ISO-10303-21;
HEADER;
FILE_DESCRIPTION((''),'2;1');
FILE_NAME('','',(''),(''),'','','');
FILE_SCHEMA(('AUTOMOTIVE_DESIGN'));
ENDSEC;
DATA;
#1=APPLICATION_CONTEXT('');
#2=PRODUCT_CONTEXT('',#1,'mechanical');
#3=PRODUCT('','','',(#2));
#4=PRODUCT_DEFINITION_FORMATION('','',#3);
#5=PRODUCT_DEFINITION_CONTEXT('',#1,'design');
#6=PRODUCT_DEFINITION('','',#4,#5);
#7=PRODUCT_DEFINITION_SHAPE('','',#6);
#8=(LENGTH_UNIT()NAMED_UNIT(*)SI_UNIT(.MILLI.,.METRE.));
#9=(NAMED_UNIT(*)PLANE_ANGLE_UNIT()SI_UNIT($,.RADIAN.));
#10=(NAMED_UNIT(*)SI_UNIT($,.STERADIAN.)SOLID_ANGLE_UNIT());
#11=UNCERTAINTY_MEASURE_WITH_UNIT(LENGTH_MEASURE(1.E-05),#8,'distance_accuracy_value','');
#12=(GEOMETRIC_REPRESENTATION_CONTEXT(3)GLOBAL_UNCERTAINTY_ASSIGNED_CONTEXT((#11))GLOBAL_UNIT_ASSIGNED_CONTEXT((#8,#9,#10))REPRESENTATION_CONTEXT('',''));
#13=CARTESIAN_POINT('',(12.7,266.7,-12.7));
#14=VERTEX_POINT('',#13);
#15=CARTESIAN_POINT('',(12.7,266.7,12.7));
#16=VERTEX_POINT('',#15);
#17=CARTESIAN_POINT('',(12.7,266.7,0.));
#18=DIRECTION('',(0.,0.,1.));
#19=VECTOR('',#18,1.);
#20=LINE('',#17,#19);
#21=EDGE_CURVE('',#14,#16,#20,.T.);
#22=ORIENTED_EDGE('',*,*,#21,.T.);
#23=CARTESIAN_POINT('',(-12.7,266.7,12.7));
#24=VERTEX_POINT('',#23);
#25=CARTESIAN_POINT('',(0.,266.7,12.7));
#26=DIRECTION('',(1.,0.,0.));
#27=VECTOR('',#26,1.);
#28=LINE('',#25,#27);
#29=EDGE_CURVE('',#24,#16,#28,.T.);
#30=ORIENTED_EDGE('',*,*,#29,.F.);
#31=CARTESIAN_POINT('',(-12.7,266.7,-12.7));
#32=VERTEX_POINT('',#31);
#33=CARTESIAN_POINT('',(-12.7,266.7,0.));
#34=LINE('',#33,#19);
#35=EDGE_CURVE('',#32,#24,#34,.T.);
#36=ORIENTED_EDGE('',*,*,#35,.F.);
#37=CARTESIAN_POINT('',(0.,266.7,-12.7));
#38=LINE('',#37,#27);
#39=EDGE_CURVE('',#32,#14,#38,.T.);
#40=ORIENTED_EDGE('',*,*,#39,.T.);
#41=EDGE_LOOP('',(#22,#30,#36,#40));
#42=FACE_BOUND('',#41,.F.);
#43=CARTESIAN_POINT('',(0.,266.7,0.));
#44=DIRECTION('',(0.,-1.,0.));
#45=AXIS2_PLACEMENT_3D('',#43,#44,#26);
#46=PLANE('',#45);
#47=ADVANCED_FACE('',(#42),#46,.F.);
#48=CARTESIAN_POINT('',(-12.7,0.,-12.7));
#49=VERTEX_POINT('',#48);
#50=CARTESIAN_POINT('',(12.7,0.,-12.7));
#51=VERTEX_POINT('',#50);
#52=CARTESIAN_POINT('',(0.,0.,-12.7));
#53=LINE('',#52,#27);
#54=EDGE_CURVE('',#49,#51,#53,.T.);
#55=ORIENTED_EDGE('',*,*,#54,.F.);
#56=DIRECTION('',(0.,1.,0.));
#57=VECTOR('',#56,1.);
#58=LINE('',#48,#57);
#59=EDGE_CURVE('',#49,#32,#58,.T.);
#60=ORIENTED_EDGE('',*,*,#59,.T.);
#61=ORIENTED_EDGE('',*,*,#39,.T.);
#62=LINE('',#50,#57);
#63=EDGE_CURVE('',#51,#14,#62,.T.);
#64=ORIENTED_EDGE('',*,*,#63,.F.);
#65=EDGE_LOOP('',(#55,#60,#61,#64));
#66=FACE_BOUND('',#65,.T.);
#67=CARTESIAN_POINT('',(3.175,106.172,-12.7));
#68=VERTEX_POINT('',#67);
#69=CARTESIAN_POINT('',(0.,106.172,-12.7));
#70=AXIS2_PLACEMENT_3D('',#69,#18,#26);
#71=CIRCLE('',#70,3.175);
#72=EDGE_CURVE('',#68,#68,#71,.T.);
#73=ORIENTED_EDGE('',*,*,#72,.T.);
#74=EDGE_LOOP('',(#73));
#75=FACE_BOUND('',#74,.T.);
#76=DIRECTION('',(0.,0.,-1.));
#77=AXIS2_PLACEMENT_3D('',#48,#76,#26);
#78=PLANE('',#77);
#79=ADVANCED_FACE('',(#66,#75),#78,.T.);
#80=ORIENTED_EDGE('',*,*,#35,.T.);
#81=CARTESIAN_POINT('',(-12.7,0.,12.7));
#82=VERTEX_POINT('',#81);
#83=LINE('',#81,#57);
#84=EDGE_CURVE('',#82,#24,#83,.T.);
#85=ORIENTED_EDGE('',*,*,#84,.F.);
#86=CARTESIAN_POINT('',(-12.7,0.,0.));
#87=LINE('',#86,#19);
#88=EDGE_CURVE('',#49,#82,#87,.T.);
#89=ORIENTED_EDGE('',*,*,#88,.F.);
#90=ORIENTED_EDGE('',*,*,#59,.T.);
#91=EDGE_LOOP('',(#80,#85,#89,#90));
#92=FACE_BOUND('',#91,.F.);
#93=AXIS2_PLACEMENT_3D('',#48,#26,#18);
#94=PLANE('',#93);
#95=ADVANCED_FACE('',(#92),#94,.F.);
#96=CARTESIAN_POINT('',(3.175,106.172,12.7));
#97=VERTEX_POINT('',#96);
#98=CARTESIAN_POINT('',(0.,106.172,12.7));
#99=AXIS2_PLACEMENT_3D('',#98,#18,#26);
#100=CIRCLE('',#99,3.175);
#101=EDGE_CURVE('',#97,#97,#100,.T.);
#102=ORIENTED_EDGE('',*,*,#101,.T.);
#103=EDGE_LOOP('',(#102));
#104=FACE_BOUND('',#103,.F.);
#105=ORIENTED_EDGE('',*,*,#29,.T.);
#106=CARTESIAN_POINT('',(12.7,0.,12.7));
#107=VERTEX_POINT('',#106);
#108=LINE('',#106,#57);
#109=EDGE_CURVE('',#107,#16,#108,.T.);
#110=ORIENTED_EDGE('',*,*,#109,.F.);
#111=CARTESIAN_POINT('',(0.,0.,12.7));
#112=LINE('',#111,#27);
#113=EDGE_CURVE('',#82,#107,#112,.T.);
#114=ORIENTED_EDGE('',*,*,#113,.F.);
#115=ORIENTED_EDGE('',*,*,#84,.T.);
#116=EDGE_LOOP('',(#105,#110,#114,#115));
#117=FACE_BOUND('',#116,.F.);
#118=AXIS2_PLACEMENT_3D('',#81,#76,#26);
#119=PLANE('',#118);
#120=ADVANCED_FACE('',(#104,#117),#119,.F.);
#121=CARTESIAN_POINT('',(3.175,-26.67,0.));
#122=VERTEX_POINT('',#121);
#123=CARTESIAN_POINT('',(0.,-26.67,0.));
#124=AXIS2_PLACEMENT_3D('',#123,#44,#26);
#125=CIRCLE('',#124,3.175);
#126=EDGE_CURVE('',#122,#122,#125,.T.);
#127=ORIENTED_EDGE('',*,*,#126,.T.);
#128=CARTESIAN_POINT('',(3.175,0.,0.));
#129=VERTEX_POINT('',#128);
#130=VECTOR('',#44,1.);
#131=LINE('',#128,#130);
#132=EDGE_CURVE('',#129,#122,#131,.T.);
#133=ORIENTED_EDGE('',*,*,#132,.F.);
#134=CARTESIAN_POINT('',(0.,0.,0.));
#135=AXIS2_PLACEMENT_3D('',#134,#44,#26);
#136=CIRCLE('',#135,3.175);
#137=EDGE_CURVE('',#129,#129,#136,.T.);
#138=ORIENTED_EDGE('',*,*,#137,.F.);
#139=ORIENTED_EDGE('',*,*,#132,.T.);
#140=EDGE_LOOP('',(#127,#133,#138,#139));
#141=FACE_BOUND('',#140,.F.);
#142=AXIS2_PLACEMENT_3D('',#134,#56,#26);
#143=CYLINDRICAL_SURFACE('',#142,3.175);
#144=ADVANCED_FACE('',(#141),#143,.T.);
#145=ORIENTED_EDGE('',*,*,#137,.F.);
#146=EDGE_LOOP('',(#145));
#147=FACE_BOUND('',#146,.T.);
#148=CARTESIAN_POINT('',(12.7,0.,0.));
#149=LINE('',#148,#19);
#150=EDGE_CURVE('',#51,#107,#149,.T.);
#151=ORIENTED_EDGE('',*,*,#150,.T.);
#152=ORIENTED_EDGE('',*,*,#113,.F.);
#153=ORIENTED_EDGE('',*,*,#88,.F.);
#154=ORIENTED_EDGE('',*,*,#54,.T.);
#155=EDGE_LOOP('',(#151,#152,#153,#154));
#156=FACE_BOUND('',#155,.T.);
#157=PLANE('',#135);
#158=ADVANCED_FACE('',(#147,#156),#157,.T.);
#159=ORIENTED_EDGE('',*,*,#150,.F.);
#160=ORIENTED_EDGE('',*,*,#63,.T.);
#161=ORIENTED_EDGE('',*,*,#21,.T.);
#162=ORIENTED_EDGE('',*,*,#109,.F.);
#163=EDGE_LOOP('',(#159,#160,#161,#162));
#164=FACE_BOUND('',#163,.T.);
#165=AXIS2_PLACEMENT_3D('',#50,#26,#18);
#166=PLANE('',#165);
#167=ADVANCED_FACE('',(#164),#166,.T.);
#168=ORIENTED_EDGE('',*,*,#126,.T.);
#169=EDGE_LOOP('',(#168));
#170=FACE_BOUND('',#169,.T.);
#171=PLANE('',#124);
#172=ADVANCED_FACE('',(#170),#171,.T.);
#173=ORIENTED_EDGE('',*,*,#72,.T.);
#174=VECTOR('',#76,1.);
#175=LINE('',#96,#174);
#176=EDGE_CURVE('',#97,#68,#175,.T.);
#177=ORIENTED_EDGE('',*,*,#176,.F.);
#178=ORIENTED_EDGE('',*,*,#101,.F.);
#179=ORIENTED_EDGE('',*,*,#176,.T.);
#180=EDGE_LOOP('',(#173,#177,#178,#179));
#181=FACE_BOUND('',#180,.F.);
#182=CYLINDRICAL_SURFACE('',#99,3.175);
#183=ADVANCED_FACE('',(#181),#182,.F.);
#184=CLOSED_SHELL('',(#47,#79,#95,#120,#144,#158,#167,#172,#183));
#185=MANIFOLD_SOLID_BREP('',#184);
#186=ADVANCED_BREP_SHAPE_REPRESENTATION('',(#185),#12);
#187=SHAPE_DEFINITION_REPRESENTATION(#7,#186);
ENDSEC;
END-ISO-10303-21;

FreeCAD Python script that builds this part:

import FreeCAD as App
import Part
import Sketcher
from FreeCAD import Vector
Q = App.Units.Quantity

doc = App.newDocument("Part")
body = doc.addObject("PartDesign::Body", "Body")

sketch1 = body.newObject("Sketcher::SketchObject", "Sketch")
sketch1.AttachmentSupport = (doc.getObject("XZ_Plane"), [""])
sketch1.MapMode = "FlatFace"
sketch1.addGeometry([
    Part.LineSegment(Vector(-13, 13, 0), Vector(-13, -13, 0)),
    Part.LineSegment(Vector(-13, -13, 0), Vector(13, -13, 0)),
    Part.LineSegment(Vector(13, -13, 0), Vector(13, 13, 0)),
    Part.LineSegment(Vector(13, 13, 0), Vector(-13, 13, 0)),
], False)
sketch1.addConstraint([
    Sketcher.Constraint("Coincident", 0, 2, 1, 1),
    Sketcher.Constraint("Coincident", 1, 2, 2, 1),
    Sketcher.Constraint("Coincident", 2, 2, 3, 1),
    Sketcher.Constraint("Coincident", 3, 2, 0, 1),
    Sketcher.Constraint("Vertical", 0),
    Sketcher.Constraint("Horizontal", 1),
    Sketcher.Constraint("Vertical", 2),
    Sketcher.Constraint("Horizontal", 3),
    Sketcher.Constraint("Symmetric", 0, 2, 2, 2, -1, 1),
    Sketcher.Constraint("Equal", 3, 0),
    Sketcher.Constraint("DistanceX", 1, 1, 1, 2, Q("1 in")),
])
pad1 = body.newObject("PartDesign::Pad", "Pad")
pad1.Profile = sketch1
pad1.Length = Q("10.5 in")
pad1.Reversed = True

sketch2 = body.newObject("Sketcher::SketchObject", "Sketch001")
sketch2.AttachmentSupport = (doc.getObject("XZ_Plane"), [""])
sketch2.MapMode = "FlatFace"
sketch2.addGeometry(Part.Circle(Vector(0, 0, 0), Vector(0, 0, 1), 3.2), False)
sketch2.addConstraint([
    Sketcher.Constraint("Coincident", 0, 3, -1, 1),
    Sketcher.Constraint("Diameter", 0, Q("0.25 in")),
])
pad2 = body.newObject("PartDesign::Pad", "Pad001")
pad2.Profile = sketch2
pad2.Length = Q("1.05 in")

sketch3 = body.newObject("Sketcher::SketchObject", "Sketch002")
sketch3.AttachmentSupport = (doc.getObject("XY_Plane"), [""])
sketch3.MapMode = "FlatFace"
sketch3.AttachmentOffset = App.Placement(Vector(0, 0, 0.5 * 25.4), App.Rotation())
sketch3.addGeometry(Part.Circle(Vector(0, 106.2, 0), Vector(0, 0, 1), 3.2), False)
sketch3.addConstraint([
    Sketcher.Constraint("PointOnObject", 0, 3, -2),
    Sketcher.Constraint("Diameter", 0, Q("0.25 in")),
    Sketcher.Constraint("DistanceY", -1, 1, 0, 3, Q("4.18 in")),
])
pocket1 = body.newObject("PartDesign::Pocket", "Pocket")
pocket1.Profile = sketch3
pocket1.Type = "ThroughAll"

doc.recompute()
